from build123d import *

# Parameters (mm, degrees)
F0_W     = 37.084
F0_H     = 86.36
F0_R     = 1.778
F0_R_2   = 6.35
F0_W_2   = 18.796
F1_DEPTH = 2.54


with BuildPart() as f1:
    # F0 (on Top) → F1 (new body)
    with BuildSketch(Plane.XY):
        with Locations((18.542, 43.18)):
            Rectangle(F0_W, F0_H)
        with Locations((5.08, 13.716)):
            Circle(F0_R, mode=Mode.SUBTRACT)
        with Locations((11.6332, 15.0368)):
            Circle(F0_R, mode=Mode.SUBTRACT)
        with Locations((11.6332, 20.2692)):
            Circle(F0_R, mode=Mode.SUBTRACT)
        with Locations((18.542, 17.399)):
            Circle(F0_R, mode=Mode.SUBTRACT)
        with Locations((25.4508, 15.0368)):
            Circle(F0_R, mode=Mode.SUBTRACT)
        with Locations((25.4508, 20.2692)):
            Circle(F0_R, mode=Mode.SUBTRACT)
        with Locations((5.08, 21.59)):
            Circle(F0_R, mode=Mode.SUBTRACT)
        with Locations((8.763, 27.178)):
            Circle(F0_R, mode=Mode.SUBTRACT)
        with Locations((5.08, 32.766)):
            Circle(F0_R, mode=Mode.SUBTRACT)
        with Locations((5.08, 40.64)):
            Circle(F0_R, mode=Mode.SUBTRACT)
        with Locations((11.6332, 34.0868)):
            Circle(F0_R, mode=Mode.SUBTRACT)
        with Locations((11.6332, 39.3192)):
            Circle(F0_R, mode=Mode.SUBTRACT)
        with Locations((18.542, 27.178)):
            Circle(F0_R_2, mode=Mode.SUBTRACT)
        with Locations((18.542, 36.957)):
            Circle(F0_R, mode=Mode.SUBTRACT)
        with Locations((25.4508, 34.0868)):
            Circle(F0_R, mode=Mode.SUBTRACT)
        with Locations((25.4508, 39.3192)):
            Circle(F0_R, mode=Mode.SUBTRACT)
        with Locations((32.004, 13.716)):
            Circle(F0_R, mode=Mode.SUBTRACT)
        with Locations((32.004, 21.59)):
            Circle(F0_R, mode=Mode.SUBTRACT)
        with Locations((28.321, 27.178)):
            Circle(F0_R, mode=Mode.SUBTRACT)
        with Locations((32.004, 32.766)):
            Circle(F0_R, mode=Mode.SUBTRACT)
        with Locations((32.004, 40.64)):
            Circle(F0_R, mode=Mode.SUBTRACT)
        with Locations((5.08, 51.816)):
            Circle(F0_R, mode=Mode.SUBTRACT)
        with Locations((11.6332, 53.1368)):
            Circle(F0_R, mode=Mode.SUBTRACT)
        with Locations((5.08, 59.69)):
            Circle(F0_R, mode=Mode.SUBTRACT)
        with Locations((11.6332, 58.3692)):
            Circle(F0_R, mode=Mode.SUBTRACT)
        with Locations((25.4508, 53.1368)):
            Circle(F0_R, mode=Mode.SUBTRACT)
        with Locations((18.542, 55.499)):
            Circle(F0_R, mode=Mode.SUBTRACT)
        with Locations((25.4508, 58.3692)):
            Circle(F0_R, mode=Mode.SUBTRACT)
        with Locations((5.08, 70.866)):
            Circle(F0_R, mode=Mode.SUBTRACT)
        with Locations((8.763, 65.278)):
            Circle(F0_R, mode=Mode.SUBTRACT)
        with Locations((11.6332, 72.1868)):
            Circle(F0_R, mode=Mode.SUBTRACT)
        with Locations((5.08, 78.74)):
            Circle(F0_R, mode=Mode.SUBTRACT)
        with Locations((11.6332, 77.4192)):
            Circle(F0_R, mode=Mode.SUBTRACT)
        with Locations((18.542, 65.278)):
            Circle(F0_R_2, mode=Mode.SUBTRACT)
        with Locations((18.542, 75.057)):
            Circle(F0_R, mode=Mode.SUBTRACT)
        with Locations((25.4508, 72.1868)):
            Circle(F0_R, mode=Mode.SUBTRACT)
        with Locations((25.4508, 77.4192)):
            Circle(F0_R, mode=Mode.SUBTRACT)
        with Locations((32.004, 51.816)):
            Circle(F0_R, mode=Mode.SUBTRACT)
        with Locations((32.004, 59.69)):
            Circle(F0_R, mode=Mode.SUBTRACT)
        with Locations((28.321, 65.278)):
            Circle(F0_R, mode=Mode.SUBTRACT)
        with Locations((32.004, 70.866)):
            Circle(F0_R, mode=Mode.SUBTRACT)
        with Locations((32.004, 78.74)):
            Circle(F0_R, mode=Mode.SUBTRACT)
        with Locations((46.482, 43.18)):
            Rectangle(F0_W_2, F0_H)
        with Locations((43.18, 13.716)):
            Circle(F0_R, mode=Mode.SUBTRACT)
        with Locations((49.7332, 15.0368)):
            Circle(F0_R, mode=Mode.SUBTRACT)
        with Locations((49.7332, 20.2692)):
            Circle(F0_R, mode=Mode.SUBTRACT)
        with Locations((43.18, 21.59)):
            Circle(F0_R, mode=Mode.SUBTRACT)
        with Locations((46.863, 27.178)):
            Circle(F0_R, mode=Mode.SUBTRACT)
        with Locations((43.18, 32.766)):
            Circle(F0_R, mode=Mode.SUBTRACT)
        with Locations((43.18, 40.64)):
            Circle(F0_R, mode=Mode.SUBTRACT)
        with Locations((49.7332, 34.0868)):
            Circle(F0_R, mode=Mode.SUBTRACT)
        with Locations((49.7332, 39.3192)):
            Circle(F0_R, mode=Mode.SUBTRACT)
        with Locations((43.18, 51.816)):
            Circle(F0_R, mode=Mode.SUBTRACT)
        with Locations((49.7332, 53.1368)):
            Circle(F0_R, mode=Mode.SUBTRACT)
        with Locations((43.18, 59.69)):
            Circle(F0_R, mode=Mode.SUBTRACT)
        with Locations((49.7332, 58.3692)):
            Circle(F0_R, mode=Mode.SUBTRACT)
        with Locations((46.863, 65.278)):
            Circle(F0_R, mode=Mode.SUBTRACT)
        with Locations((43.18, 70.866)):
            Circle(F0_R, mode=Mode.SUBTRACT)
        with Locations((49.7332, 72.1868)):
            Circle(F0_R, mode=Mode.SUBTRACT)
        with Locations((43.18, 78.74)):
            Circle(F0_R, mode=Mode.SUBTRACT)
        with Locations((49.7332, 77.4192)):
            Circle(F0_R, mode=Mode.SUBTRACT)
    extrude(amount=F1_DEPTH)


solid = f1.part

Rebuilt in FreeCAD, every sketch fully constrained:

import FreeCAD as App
import Part
import Sketcher

V = App.Vector
Q = App.Units.Quantity

doc = App.newDocument("Part")
params = doc.addObject("Spreadsheet::Sheet", "Params")
for row, (alias, value) in enumerate([
    ("sketch1_diameter", "0.5 in"),
    ("sketch1_diameter2", "0.14 in"),
    ("sketch1_width", "2.2 in"),
    ("sketch1_height", "3.4 in"),
    ("pad1_length", "0.1 in"),
], start=1):
    params.set(f"A{row}", alias)
    params.set(f"B{row}", "=" + value)
    params.setAlias(f"B{row}", alias)

body = doc.addObject("PartDesign::Body", "Body")

sketch1 = body.newObject("Sketcher::SketchObject", "Sketch")
sketch1.AttachmentSupport = (doc.getObject("XY_Plane"), [""])
sketch1.MapMode = "FlatFace"
sketch1.addGeometry([
    Part.LineSegment(V(0, 86.4, 0), V(0, 0, 0)),
    Part.LineSegment(V(0, 0, 0), V(55.9, 0, 0)),
    Part.LineSegment(V(55.9, 0, 0), V(55.9, 86.4, 0)),
    Part.LineSegment(V(55.9, 86.4, 0), V(0, 86.4, 0)),
    Part.Circle(V(5.1, 13.7, 0), V(0, 0, 1), 1.8),
    Part.Circle(V(11.6, 15, 0), V(0, 0, 1), 1.8),
    Part.Circle(V(11.6, 20.3, 0), V(0, 0, 1), 1.8),
    Part.Circle(V(5.1, 21.6, 0), V(0, 0, 1), 1.8),
    Part.Circle(V(8.8, 27.2, 0), V(0, 0, 1), 1.8),
    Part.Circle(V(18.5, 17.4, 0), V(0, 0, 1), 1.8),
    Part.Circle(V(25.5, 15, 0), V(0, 0, 1), 1.8),
    Part.Circle(V(25.5, 20.3, 0), V(0, 0, 1), 1.8),
    Part.Circle(V(18.5, 27.2, 0), V(0, 0, 1), 6.3),
    Part.Circle(V(5.1, 32.8, 0), V(0, 0, 1), 1.8),
    Part.Circle(V(11.6, 34.1, 0), V(0, 0, 1), 1.8),
    Part.Circle(V(5.1, 40.6, 0), V(0, 0, 1), 1.8),
    Part.Circle(V(11.6, 39.3, 0), V(0, 0, 1), 1.8),
    Part.Circle(V(18.5, 37, 0), V(0, 0, 1), 1.8),
    Part.Circle(V(25.5, 34.1, 0), V(0, 0, 1), 1.8),
    Part.Circle(V(25.5, 39.3, 0), V(0, 0, 1), 1.8),
    Part.Circle(V(32, 13.7, 0), V(0, 0, 1), 1.8),
    Part.Circle(V(32, 21.6, 0), V(0, 0, 1), 1.8),
    Part.Circle(V(28.3, 27.2, 0), V(0, 0, 1), 1.8),
    Part.Circle(V(43.2, 13.7, 0), V(0, 0, 1), 1.8),
    Part.Circle(V(49.7, 15, 0), V(0, 0, 1), 1.8),
    Part.Circle(V(49.7, 20.3, 0), V(0, 0, 1), 1.8),
    Part.Circle(V(43.2, 21.6, 0), V(0, 0, 1), 1.8),
    Part.Circle(V(46.9, 27.2, 0), V(0, 0, 1), 1.8),
    Part.Circle(V(32, 32.8, 0), V(0, 0, 1), 1.8),
    Part.Circle(V(32, 40.6, 0), V(0, 0, 1), 1.8),
    Part.Circle(V(43.2, 32.8, 0), V(0, 0, 1), 1.8),
    Part.Circle(V(49.7, 34.1, 0), V(0, 0, 1), 1.8),
    Part.Circle(V(43.2, 40.6, 0), V(0, 0, 1), 1.8),
    Part.Circle(V(49.7, 39.3, 0), V(0, 0, 1), 1.8),
    Part.Circle(V(5.1, 51.8, 0), V(0, 0, 1), 1.8),
    Part.Circle(V(11.6, 53.1, 0), V(0, 0, 1), 1.8),
    Part.Circle(V(5.1, 59.7, 0), V(0, 0, 1), 1.8),
    Part.Circle(V(11.6, 58.4, 0), V(0, 0, 1), 1.8),
    Part.Circle(V(25.5, 53.1, 0), V(0, 0, 1), 1.8),
    Part.Circle(V(18.5, 55.5, 0), V(0, 0, 1), 1.8),
    Part.Circle(V(25.5, 58.4, 0), V(0, 0, 1), 1.8),
    Part.Circle(V(8.8, 65.3, 0), V(0, 0, 1), 1.8),
    Part.Circle(V(5.1, 70.9, 0), V(0, 0, 1), 1.8),
    Part.Circle(V(5.1, 78.7, 0), V(0, 0, 1), 1.8),
    Part.Circle(V(11.6, 72.2, 0), V(0, 0, 1), 1.8),
    Part.Circle(V(11.6, 77.4, 0), V(0, 0, 1), 1.8),
    Part.Circle(V(18.5, 65.3, 0), V(0, 0, 1), 6.3),
    Part.Circle(V(18.5, 75.1, 0), V(0, 0, 1), 1.8),
    Part.Circle(V(25.5, 72.2, 0), V(0, 0, 1), 1.8),
    Part.Circle(V(25.5, 77.4, 0), V(0, 0, 1), 1.8),
    Part.Circle(V(32, 51.8, 0), V(0, 0, 1), 1.8),
    Part.Circle(V(32, 59.7, 0), V(0, 0, 1), 1.8),
    Part.Circle(V(43.2, 51.8, 0), V(0, 0, 1), 1.8),
    Part.Circle(V(49.7, 53.1, 0), V(0, 0, 1), 1.8),
    Part.Circle(V(43.2, 59.7, 0), V(0, 0, 1), 1.8),
    Part.Circle(V(49.7, 58.4, 0), V(0, 0, 1), 1.8),
    Part.Circle(V(28.3, 65.3, 0), V(0, 0, 1), 1.8),
    Part.Circle(V(32, 70.9, 0), V(0, 0, 1), 1.8),
    Part.Circle(V(32, 78.7, 0), V(0, 0, 1), 1.8),
    Part.Circle(V(43.2, 70.9, 0), V(0, 0, 1), 1.8),
    Part.Circle(V(46.9, 65.3, 0), V(0, 0, 1), 1.8),
    Part.Circle(V(43.2, 78.7, 0), V(0, 0, 1), 1.8),
    Part.Circle(V(49.7, 72.2, 0), V(0, 0, 1), 1.8),
    Part.Circle(V(49.7, 77.4, 0), V(0, 0, 1), 1.8),
], False)
sketch1.addConstraint([
    Sketcher.Constraint("Coincident", 0, 2, 1, 1),
    Sketcher.Constraint("Coincident", 1, 2, 2, 1),
    Sketcher.Constraint("Coincident", 2, 2, 3, 1),
    Sketcher.Constraint("Coincident", 3, 2, 0, 1),
    Sketcher.Constraint("Vertical", 0),
    Sketcher.Constraint("Horizontal", 1),
    Sketcher.Constraint("Vertical", 2),
    Sketcher.Constraint("Horizontal", 3),
    Sketcher.Constraint("Coincident", 0, 2, -1, 1),
    Sketcher.Constraint("Equal", 4, 5),
    Sketcher.Constraint("Equal", 5, 6),
    Sketcher.Constraint("Equal", 6, 7),
    Sketcher.Constraint("Equal", 7, 8),
    Sketcher.Constraint("Equal", 8, 9),
    Sketcher.Constraint("Equal", 9, 10),
    Sketcher.Constraint("Equal", 10, 11),
    Sketcher.Constraint("Equal", 11, 13),
    Sketcher.Constraint("Equal", 13, 14),
    Sketcher.Constraint("Equal", 14, 15),
    Sketcher.Constraint("Equal", 15, 16),
    Sketcher.Constraint("Equal", 16, 17),
    Sketcher.Constraint("Equal", 17, 18),
    Sketcher.Constraint("Equal", 18, 19),
    Sketcher.Constraint("Equal", 19, 20),
    Sketcher.Constraint("Equal", 20, 21),
    Sketcher.Constraint("Equal", 21, 22),
    Sketcher.Constraint("Equal", 22, 23),
    Sketcher.Constraint("Equal", 23, 24),
    Sketcher.Constraint("Equal", 24, 25),
    Sketcher.Constraint("Equal", 25, 26),
    Sketcher.Constraint("Equal", 26, 27),
    Sketcher.Constraint("Equal", 27, 28),
    Sketcher.Constraint("Equal", 28, 29),
    Sketcher.Constraint("Equal", 29, 30),
    Sketcher.Constraint("Equal", 30, 31),
    Sketcher.Constraint("Equal", 31, 32),
    Sketcher.Constraint("Equal", 32, 33),
    Sketcher.Constraint("Equal", 33, 34),
    Sketcher.Constraint("Equal", 34, 35),
    Sketcher.Constraint("Equal", 35, 36),
    Sketcher.Constraint("Equal", 36, 37),
    Sketcher.Constraint("Equal", 37, 38),
    Sketcher.Constraint("Equal", 38, 39),
    Sketcher.Constraint("Equal", 39, 40),
    Sketcher.Constraint("Equal", 40, 41),
    Sketcher.Constraint("Equal", 41, 42),
    Sketcher.Constraint("Equal", 42, 43),
    Sketcher.Constraint("Equal", 43, 44),
    Sketcher.Constraint("Equal", 44, 45),
    Sketcher.Constraint("Equal", 12, 46),
    Sketcher.Constraint("Equal", 45, 47),
    Sketcher.Constraint("Equal", 47, 48),
    Sketcher.Constraint("Equal", 48, 49),
    Sketcher.Constraint("Equal", 49, 50),
    Sketcher.Constraint("Equal", 50, 51),
    Sketcher.Constraint("Equal", 51, 52),
    Sketcher.Constraint("Equal", 52, 53),
    Sketcher.Constraint("Equal", 53, 54),
    Sketcher.Constraint("Equal", 54, 55),
    Sketcher.Constraint("Equal", 55, 56),
    Sketcher.Constraint("Equal", 56, 57),
    Sketcher.Constraint("Equal", 57, 58),
    Sketcher.Constraint("Equal", 58, 59),
    Sketcher.Constraint("Equal", 59, 60),
    Sketcher.Constraint("Equal", 60, 61),
    Sketcher.Constraint("Equal", 61, 62),
    Sketcher.Constraint("Equal", 62, 63),
    Sketcher.Constraint("Horizontal", 5, 3, 10, 3),
    Sketcher.Constraint("Horizontal", 6, 3, 11, 3),
    Sketcher.Constraint("Horizontal", 8, 3, 12, 3),
    Sketcher.Constraint("Horizontal", 14, 3, 18, 3),
    Sketcher.Constraint("Horizontal", 16, 3, 19, 3),
    Sketcher.Constraint("Horizontal", 4, 3, 20, 3),
    Sketcher.Constraint("Horizontal", 7, 3, 21, 3),
    Sketcher.Constraint("Horizontal", 12, 3, 22, 3),
    Sketcher.Constraint("Horizontal", 20, 3, 23, 3),
    Sketcher.Constraint("Horizontal", 10, 3, 24, 3),
    Sketcher.Constraint("Horizontal", 11, 3, 25, 3),
    Sketcher.Constraint("Horizontal", 21, 3, 26, 3),
    Sketcher.Constraint("Horizontal", 22, 3, 27, 3),
    Sketcher.Constraint("Horizontal", 13, 3, 28, 3),
    Sketcher.Constraint("Horizontal", 15, 3, 29, 3),
    Sketcher.Constraint("Horizontal", 28, 3, 30, 3),
    Sketcher.Constraint("Horizontal", 18, 3, 31, 3),
    Sketcher.Constraint("Horizontal", 29, 3, 32, 3),
    Sketcher.Constraint("Horizontal", 19, 3, 33, 3),
    Sketcher.Constraint("Horizontal", 35, 3, 38, 3),
    Sketcher.Constraint("Horizontal", 37, 3, 40, 3),
    Sketcher.Constraint("Horizontal", 41, 3, 46, 3),
    Sketcher.Constraint("Horizontal", 44, 3, 48, 3),
    Sketcher.Constraint("Horizontal", 45, 3, 49, 3),
    Sketcher.Constraint("Horizontal", 34, 3, 50, 3),
    Sketcher.Constraint("Horizontal", 36, 3, 51, 3),
    Sketcher.Constraint("Horizontal", 50, 3, 52, 3),
    Sketcher.Constraint("Horizontal", 38, 3, 53, 3),
    Sketcher.Constraint("Horizontal", 51, 3, 54, 3),
    Sketcher.Constraint("Horizontal", 40, 3, 55, 3),
    Sketcher.Constraint("Horizontal", 46, 3, 56, 3),
    Sketcher.Constraint("Horizontal", 42, 3, 57, 3),
    Sketcher.Constraint("Horizontal", 43, 3, 58, 3),
    Sketcher.Constraint("Horizontal", 57, 3, 59, 3),
    Sketcher.Constraint("Horizontal", 56, 3, 60, 3),
    Sketcher.Constraint("Horizontal", 58, 3, 61, 3),
    Sketcher.Constraint("Horizontal", 48, 3, 62, 3),
    Sketcher.Constraint("Horizontal", 49, 3, 63, 3),
    Sketcher.Constraint("Vertical", 5, 3, 6, 3),
    Sketcher.Constraint("Vertical", 4, 3, 7, 3),
    Sketcher.Constraint("Vertical", 10, 3, 11, 3),
    Sketcher.Constraint("Vertical", 9, 3, 12, 3),
    Sketcher.Constraint("Vertical", 7, 3, 13, 3),
    Sketcher.Constraint("Vertical", 6, 3, 14, 3),
    Sketcher.Constraint("Vertical", 13, 3, 15, 3),
    Sketcher.Constraint("Vertical", 14, 3, 16, 3),
    Sketcher.Constraint("Vertical", 12, 3, 17, 3),
    Sketcher.Constraint("Vertical", 11, 3, 18, 3),
    Sketcher.Constraint("Vertical", 18, 3, 19, 3),
    Sketcher.Constraint("Vertical", 20, 3, 21, 3),
    Sketcher.Constraint("Vertical", 24, 3, 25, 3),
    Sketcher.Constraint("Vertical", 23, 3, 26, 3),
    Sketcher.Constraint("Vertical", 21, 3, 28, 3),
    Sketcher.Constraint("Vertical", 28, 3, 29, 3),
    Sketcher.Constraint("Vertical", 26, 3, 30, 3),
    Sketcher.Constraint("Vertical", 25, 3, 31, 3),
    Sketcher.Constraint("Vertical", 30, 3, 32, 3),
    Sketcher.Constraint("Vertical", 31, 3, 33, 3),
    Sketcher.Constraint("Vertical", 15, 3, 34, 3),
    Sketcher.Constraint("Vertical", 16, 3, 35, 3),
    Sketcher.Constraint("Vertical", 34, 3, 36, 3),
    Sketcher.Constraint("Vertical", 35, 3, 37, 3),
    Sketcher.Constraint("Vertical", 19, 3, 38, 3),
    Sketcher.Constraint("Vertical", 17, 3, 39, 3),
    Sketcher.Constraint("Vertical", 38, 3, 40, 3),
    Sketcher.Constraint("Vertical", 8, 3, 41, 3),
    Sketcher.Constraint("Vertical", 36, 3, 42, 3),
    Sketcher.Constraint("Vertical", 42, 3, 43, 3),
    Sketcher.Constraint("Vertical", 37, 3, 44, 3),
    Sketcher.Constraint("Vertical", 44, 3, 45, 3),
    Sketcher.Constraint("Vertical", 39, 3, 46, 3),
    Sketcher.Constraint("Vertical", 46, 3, 47, 3),
    Sketcher.Constraint("Vertical", 40, 3, 48, 3),
    Sketcher.Constraint("Vertical", 48, 3, 49, 3),
    Sketcher.Constraint("Vertical", 29, 3, 50, 3),
    Sketcher.Constraint("Vertical", 50, 3, 51, 3),
    Sketcher.Constraint("Vertical", 32, 3, 52, 3),
    Sketcher.Constraint("Vertical", 33, 3, 53, 3),
    Sketcher.Constraint("Vertical", 52, 3, 54, 3),
    Sketcher.Constraint("Vertical", 53, 3, 55, 3),
    Sketcher.Constraint("Vertical", 22, 3, 56, 3),
    Sketcher.Constraint("Vertical", 51, 3, 57, 3),
    Sketcher.Constraint("Vertical", 57, 3, 58, 3),
    Sketcher.Constraint("Vertical", 54, 3, 59, 3),
    Sketcher.Constraint("Vertical", 27, 3, 60, 3),
    Sketcher.Constraint("Vertical", 59, 3, 61, 3),
    Sketcher.Constraint("Vertical", 55, 3, 62, 3),
    Sketcher.Constraint("Vertical", 62, 3, 63, 3),
    Sketcher.Constraint("Diameter", 12, Q("0.5 in")),
    Sketcher.Constraint("Diameter", 4, Q("0.14 in")),
    Sketcher.Constraint("DistanceX", 1, 1, 1, 2, Q("2.2 in")),
    Sketcher.Constraint("DistanceY", 0, 2, 0, 1, Q("3.4 in")),
    Sketcher.Constraint("DistanceX", -1, 1, 4, 3, Q("0.2 in")),
    Sketcher.Constraint("DistanceY", -1, 1, 15, 3, Q("1.6 in")),
    Sketcher.Constraint("DistanceX", -1, 1, 23, 3, Q("1.7 in")),
    Sketcher.Constraint("DistanceY", -1, 1, 43, 3, Q("3.1 in")),
    Sketcher.Constraint("DistanceY", -1, 1, 4, 3, Q("0.54 in")),
    Sketcher.Constraint("DistanceY", -1, 1, 7, 3, Q("0.85 in")),
    Sketcher.Constraint("DistanceY", -1, 1, 8, 3, Q("1.07 in")),
    Sketcher.Constraint("DistanceX", -1, 1, 9, 3, Q("0.73 in")),
    Sketcher.Constraint("DistanceY", -1, 1, 13, 3, Q("1.29 in")),
    Sketcher.Constraint("DistanceX", -1, 1, 20, 3, Q("1.26 in")),
    Sketcher.Constraint("DistanceY", -1, 1, 34, 3, Q("2.04 in")),
    Sketcher.Constraint("DistanceY", -1, 1, 36, 3, Q("2.35 in")),
    Sketcher.Constraint("DistanceY", -1, 1, 41, 3, Q("2.57 in")),
    Sketcher.Constraint("DistanceY", -1, 1, 42, 3, Q("2.79 in")),
    Sketcher.Constraint("DistanceX", -1, 1, 5, 3, Q("0.458 in")),
    Sketcher.Constraint("DistanceY", -1, 1, 5, 3, Q("0.592 in")),
    Sketcher.Constraint("DistanceY", -1, 1, 6, 3, Q("0.798 in")),
    Sketcher.Constraint("DistanceX", -1, 1, 8, 3, Q("0.345 in")),
    Sketcher.Constraint("DistanceY", -1, 1, 9, 3, Q("0.685 in")),
    Sketcher.Constraint("DistanceX", -1, 1, 10, 3, Q("1.002 in")),
    Sketcher.Constraint("DistanceY", -1, 1, 14, 3, Q("1.342 in")),
    Sketcher.Constraint("DistanceY", -1, 1, 16, 3, Q("1.548 in")),
    Sketcher.Constraint("DistanceY", -1, 1, 17, 3, Q("1.455 in")),
    Sketcher.Constraint("DistanceX", -1, 1, 22, 3, Q("1.115 in")),
    Sketcher.Constraint("DistanceX", -1, 1, 24, 3, Q("1.958 in")),
    Sketcher.Constraint("DistanceX", -1, 1, 27, 3, Q("1.845 in")),
    Sketcher.Constraint("DistanceY", -1, 1, 35, 3, Q("2.092 in")),
    Sketcher.Constraint("DistanceY", -1, 1, 37, 3, Q("2.298 in")),
    Sketcher.Constraint("DistanceY", -1, 1, 39, 3, Q("2.185 in")),
    Sketcher.Constraint("DistanceY", -1, 1, 44, 3, Q("2.842 in")),
    Sketcher.Constraint("DistanceY", -1, 1, 45, 3, Q("3.048 in")),
    Sketcher.Constraint("DistanceY", -1, 1, 47, 3, Q("2.955 in")),
])
sketch1.setExpression("Constraints[155]", "Params.sketch1_diameter")
sketch1.setExpression("Constraints[156]", "Params.sketch1_diameter2")
sketch1.setExpression("Constraints[157]", "Params.sketch1_width")
sketch1.setExpression("Constraints[158]", "Params.sketch1_height")
pad1 = body.newObject("PartDesign::Pad", "Pad")
pad1.Profile = sketch1
pad1.setExpression("Length", "Params.pad1_length")

doc.recompute()
